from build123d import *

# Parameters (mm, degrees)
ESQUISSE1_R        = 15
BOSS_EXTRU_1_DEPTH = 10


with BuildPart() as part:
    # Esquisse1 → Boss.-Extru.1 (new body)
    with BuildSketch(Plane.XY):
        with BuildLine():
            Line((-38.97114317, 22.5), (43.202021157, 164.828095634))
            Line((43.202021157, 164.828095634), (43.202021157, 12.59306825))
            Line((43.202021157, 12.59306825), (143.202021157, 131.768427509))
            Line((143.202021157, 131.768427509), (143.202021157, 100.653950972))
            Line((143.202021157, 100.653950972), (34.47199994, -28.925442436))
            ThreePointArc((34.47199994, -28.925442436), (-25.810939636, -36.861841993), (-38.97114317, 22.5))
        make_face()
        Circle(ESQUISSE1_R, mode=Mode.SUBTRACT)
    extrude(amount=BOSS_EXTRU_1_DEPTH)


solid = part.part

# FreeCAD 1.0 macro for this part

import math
import FreeCAD as App
import Part
import Sketcher

V = App.Vector
Q = App.Units.Quantity

doc = App.newDocument("Part")
body = doc.addObject("PartDesign::Body", "Body")

# Sketch on XY plane
sketch1 = body.newObject("Sketcher::SketchObject", "Sketch")
sketch1.AttachmentSupport = (doc.getObject("XY_Plane"), [""])
sketch1.MapMode = "FlatFace"
sketch1.addGeometry([
    Part.LineSegment(V(43, 165, 0), V(-39, 22, 0)),  # 0
    Part.ArcOfCircle(Part.Circle(V(0, 0, 0), V(0, 0, 1), 45), math.radians(150), math.radians(320)),  # 1
    Part.LineSegment(V(34, -29, 0), V(143, 101, 0)),  # 2
    Part.LineSegment(V(143, 101, 0), V(143, 132, 0)),  # 3
    Part.LineSegment(V(143, 132, 0), V(43, 13, 0)),  # 4
    Part.LineSegment(V(43, 13, 0), V(43, 165, 0)),  # 5
    Part.Circle(V(0, 0, 0), V(0, 0, 1), 15),  # 6
], False)
sketch1.addConstraint([
    Sketcher.Constraint("Tangent", 0, 2, 1, 1),
    Sketcher.Constraint("Tangent", 1, 2, 2, 1),
    Sketcher.Constraint("Coincident", 2, 2, 3, 1),
    Sketcher.Constraint("Coincident", 3, 2, 4, 1),
    Sketcher.Constraint("Coincident", 4, 2, 5, 1),
    Sketcher.Constraint("Coincident", 5, 2, 0, 1),
    Sketcher.Constraint("Vertical", 3),
    Sketcher.Constraint("Vertical", 5),
    Sketcher.Constraint("Coincident", 1, 3, -1, 1),
    Sketcher.Constraint("Coincident", 6, 3, -1, 1),
    Sketcher.Constraint("Parallel", 2, 4),
    Sketcher.Constraint("Diameter", 6, Q("30 mm")),
    Sketcher.Constraint("Radius", 1, Q("45 mm")),
    Sketcher.Constraint("Angle", 0, Q("-120 deg")),
    Sketcher.Constraint("Angle", 2, Q("50 deg")),
    Sketcher.Constraint("DistanceX", 4, 2, 2, 2, Q("100 mm")),
    Sketcher.Constraint("Distance", 0, Q("164.346329 mm")),
    Sketcher.Constraint("DistanceY", 3, 1, 3, 2, Q("31.114477 mm")),
])
pad1 = body.newObject("PartDesign::Pad", "Pad")
pad1.Profile = sketch1
pad1.Length = 10

doc.recompute()
